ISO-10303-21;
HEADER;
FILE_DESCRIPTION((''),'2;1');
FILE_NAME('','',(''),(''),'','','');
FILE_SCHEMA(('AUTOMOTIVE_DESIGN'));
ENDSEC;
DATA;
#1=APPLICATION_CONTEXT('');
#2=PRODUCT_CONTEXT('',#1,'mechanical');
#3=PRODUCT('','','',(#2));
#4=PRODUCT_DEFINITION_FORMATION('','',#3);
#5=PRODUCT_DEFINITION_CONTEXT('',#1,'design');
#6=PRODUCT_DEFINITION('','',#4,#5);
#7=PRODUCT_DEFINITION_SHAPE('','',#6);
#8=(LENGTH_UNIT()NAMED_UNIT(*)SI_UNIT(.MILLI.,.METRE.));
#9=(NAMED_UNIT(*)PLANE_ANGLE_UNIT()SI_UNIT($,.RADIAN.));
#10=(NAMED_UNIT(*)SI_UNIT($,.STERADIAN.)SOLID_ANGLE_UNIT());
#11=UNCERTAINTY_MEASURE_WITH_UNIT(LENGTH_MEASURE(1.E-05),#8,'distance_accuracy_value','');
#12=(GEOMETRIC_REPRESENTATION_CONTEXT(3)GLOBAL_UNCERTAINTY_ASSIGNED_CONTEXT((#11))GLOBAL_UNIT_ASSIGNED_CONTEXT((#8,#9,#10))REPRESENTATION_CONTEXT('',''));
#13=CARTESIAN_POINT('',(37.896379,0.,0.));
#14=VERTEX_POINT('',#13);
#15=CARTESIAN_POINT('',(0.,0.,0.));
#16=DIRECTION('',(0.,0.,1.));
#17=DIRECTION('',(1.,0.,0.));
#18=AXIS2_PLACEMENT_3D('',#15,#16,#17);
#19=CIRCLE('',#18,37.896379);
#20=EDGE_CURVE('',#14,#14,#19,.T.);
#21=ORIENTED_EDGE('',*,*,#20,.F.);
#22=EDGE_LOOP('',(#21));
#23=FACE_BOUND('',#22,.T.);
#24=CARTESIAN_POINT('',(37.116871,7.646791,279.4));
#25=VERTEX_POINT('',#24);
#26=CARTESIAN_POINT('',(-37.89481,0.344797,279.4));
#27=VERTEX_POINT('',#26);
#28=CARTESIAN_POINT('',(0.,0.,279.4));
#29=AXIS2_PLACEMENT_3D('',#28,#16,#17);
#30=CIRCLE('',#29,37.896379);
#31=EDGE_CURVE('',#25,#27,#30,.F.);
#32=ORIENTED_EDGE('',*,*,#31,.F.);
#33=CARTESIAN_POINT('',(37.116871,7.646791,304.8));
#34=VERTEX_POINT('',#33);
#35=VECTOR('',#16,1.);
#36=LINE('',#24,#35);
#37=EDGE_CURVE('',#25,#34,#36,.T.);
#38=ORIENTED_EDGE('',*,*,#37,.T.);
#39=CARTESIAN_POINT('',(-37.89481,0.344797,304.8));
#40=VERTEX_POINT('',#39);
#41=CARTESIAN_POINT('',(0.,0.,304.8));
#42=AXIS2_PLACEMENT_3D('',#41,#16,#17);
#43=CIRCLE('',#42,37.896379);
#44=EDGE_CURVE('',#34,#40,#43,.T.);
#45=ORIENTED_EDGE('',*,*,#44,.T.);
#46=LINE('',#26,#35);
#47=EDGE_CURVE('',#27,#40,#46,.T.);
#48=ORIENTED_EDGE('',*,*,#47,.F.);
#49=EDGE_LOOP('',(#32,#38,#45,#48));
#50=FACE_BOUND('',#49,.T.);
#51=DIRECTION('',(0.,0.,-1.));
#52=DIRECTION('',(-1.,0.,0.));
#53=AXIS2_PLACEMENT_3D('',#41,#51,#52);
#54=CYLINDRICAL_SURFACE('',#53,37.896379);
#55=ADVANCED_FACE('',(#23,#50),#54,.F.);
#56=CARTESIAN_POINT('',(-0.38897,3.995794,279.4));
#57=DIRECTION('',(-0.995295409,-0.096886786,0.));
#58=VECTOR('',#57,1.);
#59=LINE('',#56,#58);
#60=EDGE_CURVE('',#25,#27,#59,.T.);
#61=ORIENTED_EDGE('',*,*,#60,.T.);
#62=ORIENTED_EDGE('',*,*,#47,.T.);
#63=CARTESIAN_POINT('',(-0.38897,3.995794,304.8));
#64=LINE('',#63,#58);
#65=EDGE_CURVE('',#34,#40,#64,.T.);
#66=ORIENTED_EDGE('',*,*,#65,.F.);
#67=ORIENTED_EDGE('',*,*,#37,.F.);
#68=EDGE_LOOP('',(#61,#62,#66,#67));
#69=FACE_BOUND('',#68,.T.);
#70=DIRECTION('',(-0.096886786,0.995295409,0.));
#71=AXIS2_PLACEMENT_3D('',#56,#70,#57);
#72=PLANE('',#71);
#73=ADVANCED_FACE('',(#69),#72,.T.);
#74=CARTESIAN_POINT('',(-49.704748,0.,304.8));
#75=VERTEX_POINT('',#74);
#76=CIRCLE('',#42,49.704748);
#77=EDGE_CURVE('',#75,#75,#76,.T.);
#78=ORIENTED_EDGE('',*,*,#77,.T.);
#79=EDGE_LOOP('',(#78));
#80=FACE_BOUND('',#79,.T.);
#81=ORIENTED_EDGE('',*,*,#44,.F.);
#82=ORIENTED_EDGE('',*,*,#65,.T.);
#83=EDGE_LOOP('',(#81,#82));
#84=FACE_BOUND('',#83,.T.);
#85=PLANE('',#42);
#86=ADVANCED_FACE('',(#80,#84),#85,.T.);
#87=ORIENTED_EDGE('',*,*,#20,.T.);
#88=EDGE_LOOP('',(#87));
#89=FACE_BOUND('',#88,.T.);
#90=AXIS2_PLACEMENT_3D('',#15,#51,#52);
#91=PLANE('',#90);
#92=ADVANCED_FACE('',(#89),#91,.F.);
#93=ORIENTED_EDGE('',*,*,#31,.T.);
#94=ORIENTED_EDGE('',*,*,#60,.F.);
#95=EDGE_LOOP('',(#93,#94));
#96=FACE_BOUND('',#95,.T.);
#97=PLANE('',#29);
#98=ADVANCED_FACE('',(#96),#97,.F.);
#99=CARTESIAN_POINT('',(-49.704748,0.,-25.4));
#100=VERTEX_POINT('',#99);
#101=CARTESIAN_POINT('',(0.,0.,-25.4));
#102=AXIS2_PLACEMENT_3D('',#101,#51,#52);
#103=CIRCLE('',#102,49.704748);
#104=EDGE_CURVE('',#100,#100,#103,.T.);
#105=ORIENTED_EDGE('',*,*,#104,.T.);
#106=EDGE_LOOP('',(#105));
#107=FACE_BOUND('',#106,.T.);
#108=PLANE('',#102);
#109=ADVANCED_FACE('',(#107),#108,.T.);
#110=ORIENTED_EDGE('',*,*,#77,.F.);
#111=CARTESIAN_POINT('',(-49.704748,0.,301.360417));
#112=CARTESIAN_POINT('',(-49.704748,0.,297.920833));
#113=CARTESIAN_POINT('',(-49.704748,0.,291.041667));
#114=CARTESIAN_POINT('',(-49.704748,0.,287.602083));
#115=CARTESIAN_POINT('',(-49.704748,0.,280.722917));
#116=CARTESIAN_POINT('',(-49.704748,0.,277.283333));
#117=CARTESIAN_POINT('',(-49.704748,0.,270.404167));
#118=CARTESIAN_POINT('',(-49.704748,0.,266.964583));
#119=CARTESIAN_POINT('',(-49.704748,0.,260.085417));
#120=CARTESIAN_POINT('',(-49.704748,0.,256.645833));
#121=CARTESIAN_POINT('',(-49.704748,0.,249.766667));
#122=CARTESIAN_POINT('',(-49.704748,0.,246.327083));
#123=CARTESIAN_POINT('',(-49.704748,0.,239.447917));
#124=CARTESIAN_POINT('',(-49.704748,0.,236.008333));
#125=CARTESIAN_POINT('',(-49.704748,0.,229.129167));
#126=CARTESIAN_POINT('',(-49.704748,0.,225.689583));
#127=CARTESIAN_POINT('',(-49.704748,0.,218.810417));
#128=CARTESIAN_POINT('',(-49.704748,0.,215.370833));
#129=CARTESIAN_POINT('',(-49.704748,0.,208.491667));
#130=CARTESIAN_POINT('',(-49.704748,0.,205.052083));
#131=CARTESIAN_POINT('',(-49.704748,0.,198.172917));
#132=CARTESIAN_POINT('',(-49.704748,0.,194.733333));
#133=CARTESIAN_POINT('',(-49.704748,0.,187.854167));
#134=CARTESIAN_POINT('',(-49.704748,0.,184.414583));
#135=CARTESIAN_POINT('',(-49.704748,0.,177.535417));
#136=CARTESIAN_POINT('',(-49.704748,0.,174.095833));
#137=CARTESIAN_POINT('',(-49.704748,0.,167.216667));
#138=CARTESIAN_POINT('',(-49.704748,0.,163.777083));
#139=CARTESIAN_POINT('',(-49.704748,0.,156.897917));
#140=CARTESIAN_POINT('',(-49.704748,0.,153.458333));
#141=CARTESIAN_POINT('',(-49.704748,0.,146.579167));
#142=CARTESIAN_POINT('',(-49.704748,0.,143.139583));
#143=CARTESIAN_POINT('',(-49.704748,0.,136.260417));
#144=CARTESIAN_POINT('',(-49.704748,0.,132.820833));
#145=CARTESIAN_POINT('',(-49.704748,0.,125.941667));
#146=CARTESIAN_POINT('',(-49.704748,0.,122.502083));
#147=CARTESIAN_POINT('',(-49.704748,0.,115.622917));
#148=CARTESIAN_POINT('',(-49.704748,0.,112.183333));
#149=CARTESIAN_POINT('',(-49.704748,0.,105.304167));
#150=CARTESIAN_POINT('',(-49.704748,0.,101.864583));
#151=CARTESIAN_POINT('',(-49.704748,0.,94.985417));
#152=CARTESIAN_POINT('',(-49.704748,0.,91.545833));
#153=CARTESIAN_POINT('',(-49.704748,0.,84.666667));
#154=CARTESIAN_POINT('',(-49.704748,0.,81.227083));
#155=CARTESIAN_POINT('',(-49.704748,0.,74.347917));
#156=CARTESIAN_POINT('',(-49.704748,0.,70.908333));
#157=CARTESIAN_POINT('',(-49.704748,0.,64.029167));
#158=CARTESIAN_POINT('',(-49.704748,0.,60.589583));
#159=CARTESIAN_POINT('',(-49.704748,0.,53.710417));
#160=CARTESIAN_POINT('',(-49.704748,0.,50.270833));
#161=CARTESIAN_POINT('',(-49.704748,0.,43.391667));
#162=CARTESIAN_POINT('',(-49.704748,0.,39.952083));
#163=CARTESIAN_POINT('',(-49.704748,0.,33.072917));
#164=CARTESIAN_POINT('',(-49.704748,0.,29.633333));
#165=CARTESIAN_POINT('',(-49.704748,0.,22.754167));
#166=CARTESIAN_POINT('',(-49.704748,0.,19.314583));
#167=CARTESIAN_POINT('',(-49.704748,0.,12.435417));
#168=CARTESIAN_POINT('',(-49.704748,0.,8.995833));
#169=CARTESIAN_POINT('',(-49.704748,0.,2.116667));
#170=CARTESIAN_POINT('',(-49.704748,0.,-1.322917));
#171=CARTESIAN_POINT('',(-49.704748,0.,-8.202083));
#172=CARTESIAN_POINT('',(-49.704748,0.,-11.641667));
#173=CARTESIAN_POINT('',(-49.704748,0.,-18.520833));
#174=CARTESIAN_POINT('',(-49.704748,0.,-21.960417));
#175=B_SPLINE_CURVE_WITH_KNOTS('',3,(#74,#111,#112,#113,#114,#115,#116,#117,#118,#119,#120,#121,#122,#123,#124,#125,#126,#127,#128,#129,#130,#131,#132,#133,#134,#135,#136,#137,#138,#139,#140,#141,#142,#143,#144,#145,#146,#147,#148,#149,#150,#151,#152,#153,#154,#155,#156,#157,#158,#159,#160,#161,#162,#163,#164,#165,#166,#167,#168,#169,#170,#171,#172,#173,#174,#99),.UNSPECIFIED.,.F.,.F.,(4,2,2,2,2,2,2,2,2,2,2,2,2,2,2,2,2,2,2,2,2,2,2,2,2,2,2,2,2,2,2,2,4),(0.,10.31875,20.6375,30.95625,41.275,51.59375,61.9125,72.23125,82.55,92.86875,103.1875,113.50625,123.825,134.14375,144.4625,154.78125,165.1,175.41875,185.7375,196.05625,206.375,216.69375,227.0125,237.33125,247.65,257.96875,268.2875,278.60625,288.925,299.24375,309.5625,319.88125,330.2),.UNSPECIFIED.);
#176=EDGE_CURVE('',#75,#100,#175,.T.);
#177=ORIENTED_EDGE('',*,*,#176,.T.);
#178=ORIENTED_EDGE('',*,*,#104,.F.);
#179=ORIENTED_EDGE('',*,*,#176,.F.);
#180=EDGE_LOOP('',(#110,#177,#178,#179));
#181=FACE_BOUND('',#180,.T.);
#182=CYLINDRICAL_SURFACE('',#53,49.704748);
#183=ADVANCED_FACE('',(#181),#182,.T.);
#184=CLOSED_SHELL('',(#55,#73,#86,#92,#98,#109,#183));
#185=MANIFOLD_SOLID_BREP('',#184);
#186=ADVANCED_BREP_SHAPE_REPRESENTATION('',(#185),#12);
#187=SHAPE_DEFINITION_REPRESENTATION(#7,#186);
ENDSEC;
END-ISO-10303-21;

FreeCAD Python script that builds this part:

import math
import FreeCAD as App
import Part
import Sketcher

V = App.Vector
Q = App.Units.Quantity

doc = App.newDocument("Part")
body = doc.addObject("PartDesign::Body", "Body")

# Sketch on XY plane
sketch1 = body.newObject("Sketcher::SketchObject", "Sketch")
sketch1.AttachmentSupport = (doc.getObject("XY_Plane"), [""])
sketch1.MapMode = "FlatFace"
sketch1.addGeometry([
    Part.Circle(V(0, 0, 0), V(0, 0, 1), 50),
    Part.Circle(V(0, 0, 0), V(0, 0, 1), 38),
], False)
sketch1.addConstraint([
    Sketcher.Constraint("Coincident", 0, 3, -1, 1),
    Sketcher.Constraint("Coincident", 1, 3, -1, 1),
    Sketcher.Constraint("Diameter", 0, Q("99.409496 mm")),
    Sketcher.Constraint("Diameter", 1, Q("75.792758 mm")),
])
pad1 = body.newObject("PartDesign::Pad", "Pad")
pad1.Profile = sketch1
pad1.Length = Q("12 in")

# Sketch on XY plane
sketch2 = body.newObject("Sketcher::SketchObject", "Sketch001")
sketch2.AttachmentSupport = (doc.getObject("XY_Plane"), [""])
sketch2.MapMode = "FlatFace"
sketch2.AttachmentOffset = App.Placement(V(0, 0, -1 * 25.4), App.Rotation())
sketch2.addGeometry(Part.Circle(V(0, 0, 0), V(0, 0, 1), 50), False)
sketch2.addConstraint([
    Sketcher.Constraint("Coincident", 0, 3, -1, 1),
    Sketcher.Constraint("Diameter", 0, Q("99.409496 mm")),
])
pad2 = body.newObject("PartDesign::Pad", "Pad001")
pad2.Profile = sketch2
pad2.Length = Q("1 in")

# Sketch on XY plane
sketch3 = body.newObject("Sketcher::SketchObject", "Sketch002")
sketch3.AttachmentSupport = (doc.getObject("XY_Plane"), [""])
sketch3.MapMode = "FlatFace"
sketch3.AttachmentOffset = App.Placement(V(0, 0, 11 * 25.4), App.Rotation())
sketch3.addGeometry([
    Part.ArcOfCircle(Part.Circle(V(0, 0, 0), V(0, 0, 1), 38), math.radians(0), math.radians(11.64)),
    Part.LineSegment(V(37, 8, 0), V(-38, 0, 0)),
    Part.ArcOfCircle(Part.Circle(V(0, 0, 0), V(0, 0, 1), 38), math.radians(179), math.radians(360)),
], False)
sketch3.addConstraint([
    Sketcher.Constraint("Coincident", 0, 2, 1, 1),
    Sketcher.Constraint("Coincident", 1, 2, 2, 1),
    Sketcher.Constraint("Tangent", 2, 2, 0, 1),
    Sketcher.Constraint("Coincident", 0, 3, -1, 1),
    Sketcher.Constraint("Equal", 0, 2),
    Sketcher.Constraint("PointOnObject", 2, 2, -1),
    Sketcher.Constraint("Radius", 0, Q("37.896379 mm")),
    Sketcher.Constraint("Distance", 1, Q("75.366249 mm")),
    Sketcher.Constraint("DistanceX", -1, 1, 0, 2, Q("37.116871 mm")),
])
pad3 = body.newObject("PartDesign::Pad", "Pad002")
pad3.Profile = sketch3
pad3.Length = Q("1 in")

doc.recompute()
